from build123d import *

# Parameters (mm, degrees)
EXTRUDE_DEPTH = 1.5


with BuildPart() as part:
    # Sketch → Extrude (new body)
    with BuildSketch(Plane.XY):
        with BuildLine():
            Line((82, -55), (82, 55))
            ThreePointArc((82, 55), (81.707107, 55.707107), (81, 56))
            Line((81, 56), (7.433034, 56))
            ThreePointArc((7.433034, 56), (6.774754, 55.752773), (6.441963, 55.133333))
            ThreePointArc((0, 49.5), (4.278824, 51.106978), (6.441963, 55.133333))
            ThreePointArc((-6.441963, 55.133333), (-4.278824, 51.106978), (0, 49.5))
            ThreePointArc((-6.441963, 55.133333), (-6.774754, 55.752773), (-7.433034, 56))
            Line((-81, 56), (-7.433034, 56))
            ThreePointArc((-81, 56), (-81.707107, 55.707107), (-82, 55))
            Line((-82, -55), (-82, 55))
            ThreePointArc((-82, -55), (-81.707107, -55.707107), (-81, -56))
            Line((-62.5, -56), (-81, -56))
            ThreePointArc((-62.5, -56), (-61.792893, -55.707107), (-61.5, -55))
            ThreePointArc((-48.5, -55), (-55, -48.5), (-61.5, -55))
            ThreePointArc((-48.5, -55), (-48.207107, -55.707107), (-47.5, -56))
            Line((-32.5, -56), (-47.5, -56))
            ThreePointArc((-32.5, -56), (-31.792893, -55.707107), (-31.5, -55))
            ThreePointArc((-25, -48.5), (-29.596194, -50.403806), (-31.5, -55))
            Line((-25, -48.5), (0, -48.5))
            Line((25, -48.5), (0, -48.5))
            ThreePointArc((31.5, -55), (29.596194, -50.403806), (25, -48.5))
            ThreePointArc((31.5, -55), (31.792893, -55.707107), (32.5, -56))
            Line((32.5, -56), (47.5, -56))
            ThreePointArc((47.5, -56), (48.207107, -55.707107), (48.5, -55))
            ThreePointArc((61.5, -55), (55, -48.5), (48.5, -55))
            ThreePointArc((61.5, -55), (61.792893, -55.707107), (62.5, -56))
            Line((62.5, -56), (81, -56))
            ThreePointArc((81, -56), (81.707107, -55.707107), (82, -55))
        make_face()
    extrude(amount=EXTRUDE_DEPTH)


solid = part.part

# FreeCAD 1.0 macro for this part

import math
import FreeCAD as App
import Part
import Sketcher
from FreeCAD import Vector

doc = App.newDocument("Part")
body = doc.addObject("PartDesign::Body", "Body")

sketch1 = body.newObject("Sketcher::SketchObject", "Sketch")
sketch1.AttachmentSupport = (doc.getObject("XY_Plane"), [""])
sketch1.MapMode = "FlatFace"
sketch1.addGeometry([
    Part.LineSegment(Vector(82, -55, 0), Vector(82, 55, 0)),
    Part.ArcOfCircle(Part.Circle(Vector(81, 55, 0), Vector(0, 0, 1), 1), math.radians(0), math.radians(90)),
    Part.LineSegment(Vector(81, 56, 0), Vector(7.4, 56, 0)),
    Part.ArcOfCircle(Part.Circle(Vector(7.4, 55, 0), Vector(0, 0, 1), 1), math.radians(90), math.radians(172)),
    Part.ArcOfCircle(Part.Circle(Vector(0, 56, 0), Vector(0, 0, 1), 6.5), math.radians(-90), math.radians(-8)),
    Part.ArcOfCircle(Part.Circle(Vector(0, 56, 0), Vector(0, 0, 1), 6.5), math.radians(-172), math.radians(-90)),
    Part.ArcOfCircle(Part.Circle(Vector(-7.4, 55, 0), Vector(0, 0, 1), 1), math.radians(8), math.radians(90)),
    Part.LineSegment(Vector(-7.4, 56, 0), Vector(-81, 56, 0)),
    Part.ArcOfCircle(Part.Circle(Vector(-81, 55, 0), Vector(0, 0, 1), 1), math.radians(90), math.radians(180)),
    Part.LineSegment(Vector(-82, 55, 0), Vector(-82, -55, 0)),
    Part.ArcOfCircle(Part.Circle(Vector(-81, -55, 0), Vector(0, 0, 1), 1), math.radians(180), math.radians(270)),
    Part.LineSegment(Vector(-81, -56, 0), Vector(-62.5, -56, 0)),
    Part.ArcOfCircle(Part.Circle(Vector(-62.5, -55, 0), Vector(0, 0, 1), 1), math.radians(-90), math.radians(0)),
    Part.ArcOfCircle(Part.Circle(Vector(-55, -55, 0), Vector(0, 0, 1), 6.5), math.radians(0), math.radians(180)),
    Part.ArcOfCircle(Part.Circle(Vector(-47.5, -55, 0), Vector(0, 0, 1), 1), math.radians(180), math.radians(270)),
    Part.LineSegment(Vector(-47.5, -56, 0), Vector(-32.5, -56, 0)),
    Part.ArcOfCircle(Part.Circle(Vector(-32.5, -55, 0), Vector(0, 0, 1), 1), math.radians(-90), math.radians(0)),
    Part.ArcOfCircle(Part.Circle(Vector(-25, -55, 0), Vector(0, 0, 1), 6.5), math.radians(90), math.radians(180)),
    Part.LineSegment(Vector(-25, -48.5, 0), Vector(25, -48.5, 0)),
    Part.ArcOfCircle(Part.Circle(Vector(25, -55, 0), Vector(0, 0, 1), 6.5), math.radians(0), math.radians(90)),
    Part.ArcOfCircle(Part.Circle(Vector(32.5, -55, 0), Vector(0, 0, 1), 1), math.radians(180), math.radians(270)),
    Part.LineSegment(Vector(32.5, -56, 0), Vector(47.5, -56, 0)),
    Part.ArcOfCircle(Part.Circle(Vector(47.5, -55, 0), Vector(0, 0, 1), 1), math.radians(-90), math.radians(0)),
    Part.ArcOfCircle(Part.Circle(Vector(55, -55, 0), Vector(0, 0, 1), 6.5), math.radians(0), math.radians(180)),
    Part.ArcOfCircle(Part.Circle(Vector(62.5, -55, 0), Vector(0, 0, 1), 1), math.radians(180), math.radians(270)),
    Part.LineSegment(Vector(62.5, -56, 0), Vector(81, -56, 0)),
    Part.ArcOfCircle(Part.Circle(Vector(81, -55, 0), Vector(0, 0, 1), 1), math.radians(-90), math.radians(0)),
], False)
sketch1.addConstraint([
    Sketcher.Constraint("Tangent", 0, 2, 1, 1),
    Sketcher.Constraint("Tangent", 1, 2, 2, 1),
    Sketcher.Constraint("Tangent", 2, 2, 3, 1),
    Sketcher.Constraint("Tangent", 3, 2, 4, 2),
    Sketcher.Constraint("Tangent", 4, 1, 5, 2),
    Sketcher.Constraint("Tangent", 5, 1, 6, 1),
    Sketcher.Constraint("Tangent", 6, 2, 7, 1),
    Sketcher.Constraint("Tangent", 7, 2, 8, 1),
    Sketcher.Constraint("Tangent", 8, 2, 9, 1),
    Sketcher.Constraint("Tangent", 9, 2, 10, 1),
    Sketcher.Constraint("Tangent", 10, 2, 11, 1),
    Sketcher.Constraint("Tangent", 11, 2, 12, 1),
    Sketcher.Constraint("Tangent", 12, 2, 13, 2),
    Sketcher.Constraint("Tangent", 13, 1, 14, 1),
    Sketcher.Constraint("Tangent", 14, 2, 15, 1),
    Sketcher.Constraint("Tangent", 15, 2, 16, 1),
    Sketcher.Constraint("Tangent", 16, 2, 17, 2),
    Sketcher.Constraint("Tangent", 17, 1, 18, 1),
    Sketcher.Constraint("Tangent", 18, 2, 19, 2),
    Sketcher.Constraint("Tangent", 19, 1, 20, 1),
    Sketcher.Constraint("Tangent", 20, 2, 21, 1),
    Sketcher.Constraint("Tangent", 21, 2, 22, 1),
    Sketcher.Constraint("Tangent", 22, 2, 23, 2),
    Sketcher.Constraint("Tangent", 23, 1, 24, 1),
    Sketcher.Constraint("Tangent", 24, 2, 25, 1),
    Sketcher.Constraint("Tangent", 25, 2, 26, 1),
    Sketcher.Constraint("Tangent", 26, 2, 0, 1),
    Sketcher.Constraint("Vertical", 0),
    Sketcher.Constraint("Horizontal", 2),
    Sketcher.Constraint("Horizontal", 7),
    Sketcher.Constraint("Vertical", 9),
    Sketcher.Constraint("Horizontal", 11),
    Sketcher.Constraint("Horizontal", 15),
    Sketcher.Constraint("Horizontal", 18),
    Sketcher.Constraint("Horizontal", 21),
    Sketcher.Constraint("Horizontal", 25),
    Sketcher.Constraint("Equal", 1, 3),
    Sketcher.Constraint("Equal", 4, 5),
    Sketcher.Constraint("Equal", 3, 6),
    Sketcher.Constraint("Equal", 6, 8),
    Sketcher.Constraint("Equal", 8, 10),
    Sketcher.Constraint("Equal", 10, 12),
    Sketcher.Constraint("Equal", 5, 13),
    Sketcher.Constraint("Equal", 12, 14),
    Sketcher.Constraint("Equal", 14, 16),
    Sketcher.Constraint("Equal", 13, 17),
    Sketcher.Constraint("Equal", 17, 19),
    Sketcher.Constraint("Equal", 16, 20),
    Sketcher.Constraint("Equal", 20, 22),
    Sketcher.Constraint("Equal", 19, 23),
    Sketcher.Constraint("Equal", 22, 24),
    Sketcher.Constraint("Equal", 24, 26),
    Sketcher.Constraint("Symmetric", 1, 3, 10, 3, -1, 1),
    Sketcher.Constraint("Symmetric", 3, 3, 6, 3, -2),
    Sketcher.Constraint("Symmetric", 16, 3, 20, 3, -2),
    Sketcher.Constraint("Symmetric", 13, 3, 23, 3, -2),
    Sketcher.Constraint("PointOnObject", 4, 1, -2),
    Sketcher.Constraint("Horizontal", 12, 3, 13, 3),
    Sketcher.Constraint("Horizontal", 13, 3, 14, 3),
    Sketcher.Constraint("Horizontal", 16, 3, 17, 3),
    Sketcher.Constraint("Horizontal", 23, 3, 24, 3),
    Sketcher.Constraint("Horizontal", 5, 3, 1, 2),
    Sketcher.Constraint("Radius", 1, 0.999999),
    Sketcher.Constraint("Radius", 4, 6.5),
    Sketcher.Constraint("DistanceX", 15, 1, 15, 2, 15.0),
    Sketcher.Constraint("DistanceX", 18, 1, 18, 2, 50.0),
    Sketcher.Constraint("DistanceY", 0, 1, 0, 2, 110.0),
    Sketcher.Constraint("DistanceX", 11, 1, 11, 2, 18.5),
])
pad1 = body.newObject("PartDesign::Pad", "Pad")
pad1.Profile = sketch1
pad1.Length = 1.5

doc.recompute()
